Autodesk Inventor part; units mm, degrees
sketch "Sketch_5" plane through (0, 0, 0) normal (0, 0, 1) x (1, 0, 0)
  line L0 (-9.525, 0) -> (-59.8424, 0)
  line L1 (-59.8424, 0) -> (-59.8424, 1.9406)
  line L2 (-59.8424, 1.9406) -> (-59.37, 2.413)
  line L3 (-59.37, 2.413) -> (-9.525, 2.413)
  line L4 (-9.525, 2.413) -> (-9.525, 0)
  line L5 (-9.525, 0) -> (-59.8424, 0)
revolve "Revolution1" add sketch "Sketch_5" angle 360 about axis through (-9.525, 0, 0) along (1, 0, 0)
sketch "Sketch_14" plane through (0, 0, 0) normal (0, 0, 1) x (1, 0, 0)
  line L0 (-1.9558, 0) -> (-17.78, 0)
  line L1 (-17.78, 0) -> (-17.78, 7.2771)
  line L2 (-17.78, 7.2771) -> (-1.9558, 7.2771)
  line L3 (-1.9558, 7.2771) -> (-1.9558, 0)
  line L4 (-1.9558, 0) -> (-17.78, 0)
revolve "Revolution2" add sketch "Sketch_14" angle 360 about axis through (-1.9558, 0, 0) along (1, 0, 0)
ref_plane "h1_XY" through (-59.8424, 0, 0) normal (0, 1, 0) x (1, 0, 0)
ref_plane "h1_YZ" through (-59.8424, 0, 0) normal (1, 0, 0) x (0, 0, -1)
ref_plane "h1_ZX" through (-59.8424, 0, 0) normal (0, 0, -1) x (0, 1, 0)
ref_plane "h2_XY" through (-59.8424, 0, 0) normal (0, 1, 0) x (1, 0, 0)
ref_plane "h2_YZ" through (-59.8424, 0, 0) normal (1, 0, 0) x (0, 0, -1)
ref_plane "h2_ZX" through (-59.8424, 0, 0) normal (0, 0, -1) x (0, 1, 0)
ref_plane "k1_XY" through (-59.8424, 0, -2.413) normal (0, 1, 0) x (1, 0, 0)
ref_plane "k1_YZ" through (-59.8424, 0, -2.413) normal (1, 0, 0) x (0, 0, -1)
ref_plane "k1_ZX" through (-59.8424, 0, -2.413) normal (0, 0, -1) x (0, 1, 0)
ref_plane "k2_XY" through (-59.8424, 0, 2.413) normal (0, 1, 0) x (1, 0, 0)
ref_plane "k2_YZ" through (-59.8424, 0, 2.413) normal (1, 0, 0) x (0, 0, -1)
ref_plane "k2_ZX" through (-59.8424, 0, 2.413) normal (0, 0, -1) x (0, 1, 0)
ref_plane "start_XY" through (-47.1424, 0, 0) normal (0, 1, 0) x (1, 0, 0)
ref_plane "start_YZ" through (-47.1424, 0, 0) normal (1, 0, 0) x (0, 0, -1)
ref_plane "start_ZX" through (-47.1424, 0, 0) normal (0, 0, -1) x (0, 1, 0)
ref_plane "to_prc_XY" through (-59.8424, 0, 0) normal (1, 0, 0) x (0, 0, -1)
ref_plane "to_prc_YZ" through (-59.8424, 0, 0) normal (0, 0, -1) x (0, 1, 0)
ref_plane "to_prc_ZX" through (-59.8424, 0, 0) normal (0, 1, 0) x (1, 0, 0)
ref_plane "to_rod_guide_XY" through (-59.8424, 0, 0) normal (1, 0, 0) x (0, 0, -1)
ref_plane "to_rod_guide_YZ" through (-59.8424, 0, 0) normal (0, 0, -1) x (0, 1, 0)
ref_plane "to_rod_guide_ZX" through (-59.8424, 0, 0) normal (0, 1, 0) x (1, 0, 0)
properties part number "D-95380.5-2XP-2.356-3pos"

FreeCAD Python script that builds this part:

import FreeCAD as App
import Part
import Sketcher
Q = App.Units.Quantity


def add_polygon(sketch, points):
    """Adds a closed chain of lines whose ends are joined by coincident constraints."""
    first, n = sketch.GeometryCount, len(points)
    for a, b in zip(points, points[1:] + points[:1]):
        sketch.addGeometry(Part.LineSegment(App.Vector(*a, 0), App.Vector(*b, 0)), False)
    for i in range(n):
        sketch.addConstraint(Sketcher.Constraint("Coincident", first + i, 2, first + (i + 1) % n, 1))

doc = App.newDocument("Part")
body = doc.addObject("PartDesign::Body", "Body")

sketch1 = body.newObject("Sketcher::SketchObject", "Sketch")
sketch1.AttachmentSupport = (doc.getObject("XY_Plane"), [""])
sketch1.MapMode = "FlatFace"
add_polygon(sketch1, [(-59.8, 0), (-9.5, 0), (-9.5, 2.4), (-59.4, 2.4), (-59.8, 1.9)])
sketch1.addConstraint(Sketcher.Constraint("Horizontal", 0))
sketch1.addConstraint(Sketcher.Constraint("Vertical", 1))
sketch1.addConstraint(Sketcher.Constraint("Horizontal", 2))
sketch1.addConstraint(Sketcher.Constraint("Vertical", 4))
sketch1.addConstraint(Sketcher.Constraint("PointOnObject", 0, 2, -1))
sketch1.addConstraint(Sketcher.Constraint("Angle", 3, Q("-135 deg")))
sketch1.addConstraint(Sketcher.Constraint("DistanceX", 0, 1, 0, 2, Q("1.981 in")))
sketch1.addConstraint(Sketcher.Constraint("DistanceY", 1, 1, 1, 2, Q("0.095 in")))
sketch1.addConstraint(Sketcher.Constraint("DistanceX", 2, 2, 2, 1, Q("1.9624 in")))
sketch1.addConstraint(Sketcher.Constraint("DistanceX", 0, 2, -1, 1, Q("0.375 in")))
revolution = body.newObject("PartDesign::Revolution", "Revolution")
revolution.Profile = sketch1
revolution.ReferenceAxis = (sketch1, ["H_Axis"])
revolution.Angle = 360

sketch2 = body.newObject("Sketcher::SketchObject", "Sketch001")
sketch2.AttachmentSupport = (doc.getObject("XY_Plane"), [""])
sketch2.MapMode = "FlatFace"
add_polygon(sketch2, [(-18, 0), (-2, 0), (-2, 7), (-18, 7)])
sketch2.addConstraint(Sketcher.Constraint("Horizontal", 0))
sketch2.addConstraint(Sketcher.Constraint("Vertical", 1))
sketch2.addConstraint(Sketcher.Constraint("Horizontal", 2))
sketch2.addConstraint(Sketcher.Constraint("Vertical", 3))
sketch2.addConstraint(Sketcher.Constraint("PointOnObject", 0, 2, -1))
sketch2.addConstraint(Sketcher.Constraint("DistanceX", 2, 2, -1, 1, Q("0.7 in")))
sketch2.addConstraint(Sketcher.Constraint("DistanceX", 0, 1, 0, 2, Q("0.623 in")))
sketch2.addConstraint(Sketcher.Constraint("DistanceY", 1, 1, 1, 2, Q("0.2865 in")))
revolution2 = body.newObject("PartDesign::Revolution", "Revolution001")
revolution2.Profile = sketch2
revolution2.ReferenceAxis = (sketch2, ["H_Axis"])
revolution2.Angle = 360

doc.recompute()
